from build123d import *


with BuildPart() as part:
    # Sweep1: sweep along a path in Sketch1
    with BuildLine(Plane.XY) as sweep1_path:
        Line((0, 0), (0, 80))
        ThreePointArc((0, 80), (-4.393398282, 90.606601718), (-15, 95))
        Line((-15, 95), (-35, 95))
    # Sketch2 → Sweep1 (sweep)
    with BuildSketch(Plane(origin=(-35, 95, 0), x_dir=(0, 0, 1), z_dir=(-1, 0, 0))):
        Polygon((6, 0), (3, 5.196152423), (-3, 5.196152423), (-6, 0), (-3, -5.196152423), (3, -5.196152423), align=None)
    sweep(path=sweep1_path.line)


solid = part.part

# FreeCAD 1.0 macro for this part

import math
import FreeCAD as App
import Part
import Sketcher
from FreeCAD import Vector
Q = App.Units.Quantity


def add_polygon(sketch, points):
    """Adds a closed chain of lines whose ends are joined by coincident constraints."""
    first, n = sketch.GeometryCount, len(points)
    for a, b in zip(points, points[1:] + points[:1]):
        sketch.addGeometry(Part.LineSegment(App.Vector(*a, 0), App.Vector(*b, 0)), False)
    for i in range(n):
        sketch.addConstraint(Sketcher.Constraint("Coincident", first + i, 2, first + (i + 1) % n, 1))

doc = App.newDocument("Part")
params = doc.addObject("Spreadsheet::Sheet", "Params")
for row, (alias, value) in enumerate([
    ("sketch1_height", "6 mm"),
    ("sketch1_length", "6 mm"),
    ("sketch2_radius", "15 mm"),
    ("sketch2_width", "20 mm"),
    ("sketch2_height", "80 mm"),
], start=1):
    params.set(f"A{row}", alias)
    params.set(f"B{row}", "=" + value)
    params.setAlias(f"B{row}", alias)

body = doc.addObject("PartDesign::Body", "Body")

# Sketch on YZ plane
sketch1 = body.newObject("Sketcher::SketchObject", "Sketch")
sketch1.AttachmentSupport = (doc.getObject("YZ_Plane"), [""])
sketch1.MapMode = "FlatFace"
sketch1.AttachmentOffset = App.Placement(Vector(0, 0, -35), App.Rotation())
add_polygon(sketch1, [(95, 6), (100.196152, 3), (100.196152, -3), (95, -6), (89.803848, -3), (89.803848, 3)])  # lines 0-5
sketch1.addConstraint(Sketcher.Constraint("Vertical", 1))
sketch1.addConstraint(Sketcher.Constraint("Vertical", 4))
sketch1.addConstraint(Sketcher.Constraint("Symmetric", 2, 2, 5, 2, -1))
sketch1.addConstraint(Sketcher.Constraint("Parallel", 0, 3))
sketch1.addConstraint(Sketcher.Constraint("Parallel", 2, 5))
sketch1.addConstraint(Sketcher.Constraint("Horizontal", 1, 2, 3, 2))
sketch1.addConstraint(Sketcher.Constraint("Horizontal", 0, 2, 4, 2))
sketch1.addConstraint(Sketcher.Constraint("DistanceY", 1, 2, 1, 1, 6.0))
sketch1.addConstraint(Sketcher.Constraint("Angle", 0, Q("-30 deg")))
sketch1.addConstraint(Sketcher.Constraint("Distance", 0, 6.0))
sketch1.addConstraint(Sketcher.Constraint("DistanceX", -1, 1, 2, 2, 95.0))
sketch1.setExpression("Constraints[13]", "Params.sketch1_height")
sketch1.setExpression("Constraints[15]", "Params.sketch1_length")

# Sketch on XY plane
sketch2 = body.newObject("Sketcher::SketchObject", "Sketch001")
sketch2.AttachmentSupport = (doc.getObject("XY_Plane"), [""])
sketch2.MapMode = "FlatFace"
sketch2.addGeometry(Part.LineSegment(Vector(0, 0, 0), Vector(0, 80, 0)), False)
sketch2.addGeometry(Part.ArcOfCircle(Part.Circle(Vector(-15, 80, 0), Vector(0, 0, 1), 15), math.radians(0), math.radians(90)), False)
sketch2.addGeometry(Part.LineSegment(Vector(-15, 95, 0), Vector(-35, 95, 0)), False)
sketch2.addConstraint(Sketcher.Constraint("Tangent", 0, 2, 1, 1))
sketch2.addConstraint(Sketcher.Constraint("Tangent", 1, 2, 2, 1))
sketch2.addConstraint(Sketcher.Constraint("Vertical", 0))
sketch2.addConstraint(Sketcher.Constraint("Horizontal", 2))
sketch2.addConstraint(Sketcher.Constraint("Coincident", 0, 1, -1, 1))
sketch2.addConstraint(Sketcher.Constraint("Radius", 1, 15.0))
sketch2.addConstraint(Sketcher.Constraint("DistanceX", 2, 2, 2, 1, 20.0))
sketch2.addConstraint(Sketcher.Constraint("DistanceY", 0, 1, 0, 2, 80.0))
sketch2.setExpression("Constraints[5]", "Params.sketch2_radius")
sketch2.setExpression("Constraints[6]", "Params.sketch2_width")
sketch2.setExpression("Constraints[7]", "Params.sketch2_height")
doc.recompute()

additivepipe = body.newObject("PartDesign::AdditivePipe", "AdditivePipe")
additivepipe.Profile = sketch1
additivepipe.Spine = (sketch2, ["Edge1", "Edge2", "Edge3"])

doc.recompute()
